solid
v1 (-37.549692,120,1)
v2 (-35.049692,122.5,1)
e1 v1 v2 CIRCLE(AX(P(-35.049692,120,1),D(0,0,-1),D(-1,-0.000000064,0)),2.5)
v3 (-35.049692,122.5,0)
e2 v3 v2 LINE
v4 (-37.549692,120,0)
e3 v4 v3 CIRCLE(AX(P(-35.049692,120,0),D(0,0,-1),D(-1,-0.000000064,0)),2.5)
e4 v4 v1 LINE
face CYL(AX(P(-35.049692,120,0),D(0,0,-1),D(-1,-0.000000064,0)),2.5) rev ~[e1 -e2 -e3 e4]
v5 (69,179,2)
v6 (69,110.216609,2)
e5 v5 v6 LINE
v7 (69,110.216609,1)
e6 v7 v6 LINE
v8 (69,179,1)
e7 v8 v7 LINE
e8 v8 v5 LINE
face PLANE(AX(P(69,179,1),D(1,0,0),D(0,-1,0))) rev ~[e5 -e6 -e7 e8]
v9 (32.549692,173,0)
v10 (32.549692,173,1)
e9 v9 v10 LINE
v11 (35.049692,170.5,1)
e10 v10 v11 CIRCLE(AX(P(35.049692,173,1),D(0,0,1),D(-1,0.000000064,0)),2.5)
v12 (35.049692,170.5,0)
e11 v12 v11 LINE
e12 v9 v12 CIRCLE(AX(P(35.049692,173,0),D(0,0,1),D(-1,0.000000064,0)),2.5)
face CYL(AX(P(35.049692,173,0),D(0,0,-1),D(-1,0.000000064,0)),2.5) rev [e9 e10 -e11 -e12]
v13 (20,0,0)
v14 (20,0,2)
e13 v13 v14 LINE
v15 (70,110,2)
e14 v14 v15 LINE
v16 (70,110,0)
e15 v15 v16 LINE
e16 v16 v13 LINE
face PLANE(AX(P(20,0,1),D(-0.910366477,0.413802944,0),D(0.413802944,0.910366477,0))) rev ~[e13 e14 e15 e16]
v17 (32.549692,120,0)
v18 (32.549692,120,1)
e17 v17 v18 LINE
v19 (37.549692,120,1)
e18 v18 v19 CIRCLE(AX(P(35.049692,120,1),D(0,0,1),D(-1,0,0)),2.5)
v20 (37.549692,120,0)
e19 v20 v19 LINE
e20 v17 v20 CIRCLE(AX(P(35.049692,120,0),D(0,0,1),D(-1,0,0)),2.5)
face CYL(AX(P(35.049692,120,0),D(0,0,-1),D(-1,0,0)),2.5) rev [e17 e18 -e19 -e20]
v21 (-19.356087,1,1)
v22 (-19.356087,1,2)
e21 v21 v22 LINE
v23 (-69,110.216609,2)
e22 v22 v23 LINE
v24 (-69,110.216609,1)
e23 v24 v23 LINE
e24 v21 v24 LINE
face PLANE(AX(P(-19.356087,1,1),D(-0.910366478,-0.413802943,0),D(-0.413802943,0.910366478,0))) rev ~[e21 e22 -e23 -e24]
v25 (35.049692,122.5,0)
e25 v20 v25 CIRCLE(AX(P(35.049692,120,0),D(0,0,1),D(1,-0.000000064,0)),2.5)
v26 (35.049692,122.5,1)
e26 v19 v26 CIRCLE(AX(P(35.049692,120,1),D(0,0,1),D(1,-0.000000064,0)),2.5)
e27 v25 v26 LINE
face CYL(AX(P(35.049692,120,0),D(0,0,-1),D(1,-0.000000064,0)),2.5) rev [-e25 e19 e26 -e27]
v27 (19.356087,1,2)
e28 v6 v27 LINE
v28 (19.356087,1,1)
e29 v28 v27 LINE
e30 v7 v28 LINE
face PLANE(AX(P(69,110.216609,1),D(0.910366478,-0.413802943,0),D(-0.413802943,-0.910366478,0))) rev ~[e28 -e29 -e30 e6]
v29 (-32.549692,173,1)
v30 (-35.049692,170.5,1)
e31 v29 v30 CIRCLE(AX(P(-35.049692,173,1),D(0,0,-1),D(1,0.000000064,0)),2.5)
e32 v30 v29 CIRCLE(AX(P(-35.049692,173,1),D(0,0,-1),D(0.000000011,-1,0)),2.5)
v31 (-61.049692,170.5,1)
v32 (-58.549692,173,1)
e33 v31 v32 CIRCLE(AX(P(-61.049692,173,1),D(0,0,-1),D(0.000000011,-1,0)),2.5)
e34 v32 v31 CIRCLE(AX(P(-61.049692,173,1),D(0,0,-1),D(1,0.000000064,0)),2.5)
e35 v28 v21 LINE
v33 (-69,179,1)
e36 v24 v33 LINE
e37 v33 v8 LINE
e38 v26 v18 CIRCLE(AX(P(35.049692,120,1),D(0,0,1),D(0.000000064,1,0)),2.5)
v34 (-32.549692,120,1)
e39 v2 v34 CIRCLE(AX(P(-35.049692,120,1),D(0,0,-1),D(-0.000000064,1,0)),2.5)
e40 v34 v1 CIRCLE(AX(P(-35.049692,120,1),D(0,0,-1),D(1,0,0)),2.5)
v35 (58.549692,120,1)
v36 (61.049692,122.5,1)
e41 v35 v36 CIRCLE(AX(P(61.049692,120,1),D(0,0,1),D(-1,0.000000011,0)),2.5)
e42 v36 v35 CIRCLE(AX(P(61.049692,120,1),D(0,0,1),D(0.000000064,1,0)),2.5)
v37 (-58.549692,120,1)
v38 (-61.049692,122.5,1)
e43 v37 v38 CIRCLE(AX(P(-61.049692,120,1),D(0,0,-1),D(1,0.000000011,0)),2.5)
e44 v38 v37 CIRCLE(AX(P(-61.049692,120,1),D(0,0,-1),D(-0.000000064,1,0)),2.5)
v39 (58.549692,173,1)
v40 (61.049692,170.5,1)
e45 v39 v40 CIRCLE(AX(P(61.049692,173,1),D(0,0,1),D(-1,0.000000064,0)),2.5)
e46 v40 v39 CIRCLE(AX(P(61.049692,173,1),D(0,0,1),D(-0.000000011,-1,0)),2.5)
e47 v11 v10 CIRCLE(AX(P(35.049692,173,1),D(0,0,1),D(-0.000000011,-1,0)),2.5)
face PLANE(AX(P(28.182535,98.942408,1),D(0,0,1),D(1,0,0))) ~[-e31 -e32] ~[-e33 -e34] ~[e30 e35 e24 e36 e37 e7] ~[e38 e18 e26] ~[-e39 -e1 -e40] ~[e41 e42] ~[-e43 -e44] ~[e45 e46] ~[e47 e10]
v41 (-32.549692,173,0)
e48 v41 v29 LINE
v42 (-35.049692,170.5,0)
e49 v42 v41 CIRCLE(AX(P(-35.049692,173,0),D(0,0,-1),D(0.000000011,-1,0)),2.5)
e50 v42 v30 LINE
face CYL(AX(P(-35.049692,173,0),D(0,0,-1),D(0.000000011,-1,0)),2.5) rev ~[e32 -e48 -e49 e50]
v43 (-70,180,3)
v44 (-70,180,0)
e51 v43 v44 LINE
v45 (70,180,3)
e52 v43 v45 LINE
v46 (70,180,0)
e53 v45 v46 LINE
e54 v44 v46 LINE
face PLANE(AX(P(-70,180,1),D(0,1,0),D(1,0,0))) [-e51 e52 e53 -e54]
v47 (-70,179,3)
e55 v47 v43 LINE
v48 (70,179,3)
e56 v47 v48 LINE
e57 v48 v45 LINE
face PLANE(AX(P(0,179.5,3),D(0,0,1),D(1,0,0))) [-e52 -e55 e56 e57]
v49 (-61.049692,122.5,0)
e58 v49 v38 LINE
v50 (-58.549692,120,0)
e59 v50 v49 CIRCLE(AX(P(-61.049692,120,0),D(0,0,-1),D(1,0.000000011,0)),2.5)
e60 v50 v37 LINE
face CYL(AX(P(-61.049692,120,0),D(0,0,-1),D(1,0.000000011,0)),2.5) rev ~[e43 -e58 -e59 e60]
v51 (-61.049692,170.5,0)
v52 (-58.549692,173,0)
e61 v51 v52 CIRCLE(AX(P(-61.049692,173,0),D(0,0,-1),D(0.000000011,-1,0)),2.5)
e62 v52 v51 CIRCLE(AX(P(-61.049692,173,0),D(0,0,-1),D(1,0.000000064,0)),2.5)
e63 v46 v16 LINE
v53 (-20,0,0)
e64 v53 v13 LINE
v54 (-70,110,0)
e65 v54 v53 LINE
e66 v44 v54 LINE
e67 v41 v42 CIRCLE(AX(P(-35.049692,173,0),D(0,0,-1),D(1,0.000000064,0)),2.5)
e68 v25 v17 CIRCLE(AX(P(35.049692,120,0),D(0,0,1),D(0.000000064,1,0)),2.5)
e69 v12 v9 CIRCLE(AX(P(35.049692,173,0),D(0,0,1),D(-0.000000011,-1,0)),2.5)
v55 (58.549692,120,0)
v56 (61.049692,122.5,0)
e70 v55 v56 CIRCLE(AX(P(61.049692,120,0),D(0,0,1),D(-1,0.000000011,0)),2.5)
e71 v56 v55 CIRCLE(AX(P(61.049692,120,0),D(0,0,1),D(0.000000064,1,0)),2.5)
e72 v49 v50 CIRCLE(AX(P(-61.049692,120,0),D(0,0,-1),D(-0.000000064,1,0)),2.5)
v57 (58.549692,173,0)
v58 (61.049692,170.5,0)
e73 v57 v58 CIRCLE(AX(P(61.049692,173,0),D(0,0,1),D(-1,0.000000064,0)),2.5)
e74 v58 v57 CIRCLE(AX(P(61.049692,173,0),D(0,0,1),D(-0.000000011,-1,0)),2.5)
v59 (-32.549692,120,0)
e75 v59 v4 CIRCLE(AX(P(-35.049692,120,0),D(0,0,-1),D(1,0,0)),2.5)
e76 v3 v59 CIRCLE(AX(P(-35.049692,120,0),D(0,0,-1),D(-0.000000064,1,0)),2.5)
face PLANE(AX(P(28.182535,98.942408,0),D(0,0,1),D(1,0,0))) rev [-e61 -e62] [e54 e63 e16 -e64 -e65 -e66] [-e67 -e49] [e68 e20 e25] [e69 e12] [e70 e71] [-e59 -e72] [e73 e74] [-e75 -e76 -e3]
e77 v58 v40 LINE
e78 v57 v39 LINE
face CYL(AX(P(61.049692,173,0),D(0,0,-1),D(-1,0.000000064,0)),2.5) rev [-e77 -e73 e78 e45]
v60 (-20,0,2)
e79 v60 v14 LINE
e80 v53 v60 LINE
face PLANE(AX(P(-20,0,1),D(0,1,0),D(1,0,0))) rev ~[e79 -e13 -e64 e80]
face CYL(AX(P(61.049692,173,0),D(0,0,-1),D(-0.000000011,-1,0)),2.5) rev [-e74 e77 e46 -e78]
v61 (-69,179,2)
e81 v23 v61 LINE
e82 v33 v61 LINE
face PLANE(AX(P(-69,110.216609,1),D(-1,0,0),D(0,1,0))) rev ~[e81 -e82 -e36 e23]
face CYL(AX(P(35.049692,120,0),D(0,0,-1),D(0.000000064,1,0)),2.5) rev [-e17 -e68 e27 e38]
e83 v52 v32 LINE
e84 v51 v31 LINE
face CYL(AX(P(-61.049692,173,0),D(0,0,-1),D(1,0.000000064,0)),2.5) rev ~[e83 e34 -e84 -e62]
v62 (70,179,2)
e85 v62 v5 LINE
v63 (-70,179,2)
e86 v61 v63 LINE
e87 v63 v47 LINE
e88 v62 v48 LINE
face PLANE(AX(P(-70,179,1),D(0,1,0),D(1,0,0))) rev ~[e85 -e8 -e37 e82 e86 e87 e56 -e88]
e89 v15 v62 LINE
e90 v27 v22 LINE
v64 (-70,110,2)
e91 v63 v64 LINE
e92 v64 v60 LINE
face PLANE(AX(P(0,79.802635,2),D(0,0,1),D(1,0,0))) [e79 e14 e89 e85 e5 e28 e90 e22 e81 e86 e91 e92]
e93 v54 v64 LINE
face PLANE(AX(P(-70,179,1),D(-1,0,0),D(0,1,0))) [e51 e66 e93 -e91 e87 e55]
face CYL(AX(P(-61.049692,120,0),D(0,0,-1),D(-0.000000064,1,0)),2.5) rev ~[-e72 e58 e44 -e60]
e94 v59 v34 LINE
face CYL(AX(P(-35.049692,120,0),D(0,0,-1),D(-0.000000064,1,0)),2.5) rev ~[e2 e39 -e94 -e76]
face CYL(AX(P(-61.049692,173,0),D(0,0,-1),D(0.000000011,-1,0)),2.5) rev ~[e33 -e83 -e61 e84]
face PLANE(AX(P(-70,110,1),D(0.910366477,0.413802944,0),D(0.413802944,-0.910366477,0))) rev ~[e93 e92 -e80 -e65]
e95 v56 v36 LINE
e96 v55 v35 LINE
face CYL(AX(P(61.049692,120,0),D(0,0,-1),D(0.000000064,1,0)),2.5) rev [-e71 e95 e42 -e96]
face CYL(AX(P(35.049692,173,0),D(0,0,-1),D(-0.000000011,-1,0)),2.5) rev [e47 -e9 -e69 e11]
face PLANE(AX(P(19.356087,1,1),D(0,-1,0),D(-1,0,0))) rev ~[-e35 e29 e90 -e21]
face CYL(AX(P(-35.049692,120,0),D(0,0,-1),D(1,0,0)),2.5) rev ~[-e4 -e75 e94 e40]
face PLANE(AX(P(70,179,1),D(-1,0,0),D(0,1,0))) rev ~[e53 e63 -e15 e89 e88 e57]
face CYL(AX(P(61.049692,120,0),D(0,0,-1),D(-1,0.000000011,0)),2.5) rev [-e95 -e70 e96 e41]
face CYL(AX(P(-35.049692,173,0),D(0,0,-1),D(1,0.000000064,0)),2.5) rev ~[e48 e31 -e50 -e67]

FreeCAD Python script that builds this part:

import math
import FreeCAD as App
import Part
import Sketcher
from FreeCAD import Vector


def add_polygon(sketch, points):
    """Adds a closed chain of lines whose ends are joined by coincident constraints."""
    first, n = sketch.GeometryCount, len(points)
    for a, b in zip(points, points[1:] + points[:1]):
        sketch.addGeometry(Part.LineSegment(App.Vector(*a, 0), App.Vector(*b, 0)), False)
    for i in range(n):
        sketch.addConstraint(Sketcher.Constraint("Coincident", first + i, 2, first + (i + 1) % n, 1))

doc = App.newDocument("Part")
body = doc.addObject("PartDesign::Body", "Body")

sketch1 = body.newObject("Sketcher::SketchObject", "Sketch")
sketch1.AttachmentSupport = (doc.getObject("XY_Plane"), [""])
sketch1.MapMode = "FlatFace"
add_polygon(sketch1, [(-20, 0), (0, 0), (0, 180), (-70, 180), (-70, 110)])
sketch1.addGeometry(Part.ArcOfCircle(Part.Circle(Vector(-61.049692, 120, 0), Vector(0, 0, 1), 2.5), math.radians(-0.000004), math.radians(90.000004)), False)
sketch1.addGeometry(Part.ArcOfCircle(Part.Circle(Vector(-61.049692, 120, 0), Vector(0, 0, 1), 2.5), math.radians(89.999999), math.radians(360.000001)), False)
sketch1.addGeometry(Part.ArcOfCircle(Part.Circle(Vector(-35.049692, 120, 0), Vector(0, 0, 1), 2.5), math.radians(-0.000004), math.radians(90.000004)), False)
sketch1.addGeometry(Part.ArcOfCircle(Part.Circle(Vector(-35.049692, 120, 0), Vector(0, 0, 1), 2.5), math.radians(180), math.radians(360)), False)
sketch1.addGeometry(Part.ArcOfCircle(Part.Circle(Vector(-35.049692, 120, 0), Vector(0, 0, 1), 2.5), math.radians(89.999996), math.radians(180.000004)), False)
sketch1.addGeometry(Part.ArcOfCircle(Part.Circle(Vector(-61.049692, 173, 0), Vector(0, 0, 1), 2.5), math.radians(-90.000004), math.radians(0.000004)), False)
sketch1.addGeometry(Part.ArcOfCircle(Part.Circle(Vector(-61.049692, 173, 0), Vector(0, 0, 1), 2.5), math.radians(-0.000001), math.radians(270.000001)), False)
sketch1.addGeometry(Part.ArcOfCircle(Part.Circle(Vector(-35.049692, 173, 0), Vector(0, 0, 1), 2.5), math.radians(-0.000001), math.radians(270.000001)), False)
sketch1.addGeometry(Part.ArcOfCircle(Part.Circle(Vector(-35.049692, 173, 0), Vector(0, 0, 1), 2.5), math.radians(-90.000004), math.radians(0.000004)), False)
sketch1.addConstraint(Sketcher.Constraint("Tangent", 5, 1, 6, 2))
sketch1.addConstraint(Sketcher.Constraint("Coincident", 6, 1, 5, 2))
sketch1.addConstraint(Sketcher.Constraint("Tangent", 7, 1, 8, 2))
sketch1.addConstraint(Sketcher.Constraint("Tangent", 8, 1, 9, 2))
sketch1.addConstraint(Sketcher.Constraint("Tangent", 9, 1, 7, 2))
sketch1.addConstraint(Sketcher.Constraint("Tangent", 10, 1, 11, 2))
sketch1.addConstraint(Sketcher.Constraint("Coincident", 11, 1, 10, 2))
sketch1.addConstraint(Sketcher.Constraint("Tangent", 12, 1, 13, 2))
sketch1.addConstraint(Sketcher.Constraint("Coincident", 13, 1, 12, 2))
sketch1.addConstraint(Sketcher.Constraint("Horizontal", 0))
sketch1.addConstraint(Sketcher.Constraint("Vertical", 1))
sketch1.addConstraint(Sketcher.Constraint("Horizontal", 2))
sketch1.addConstraint(Sketcher.Constraint("Vertical", 3))
sketch1.addConstraint(Sketcher.Constraint("Coincident", 0, 2, -1, 1))
sketch1.addConstraint(Sketcher.Constraint("Equal", 6, 7))
sketch1.addConstraint(Sketcher.Constraint("Equal", 9, 10))
sketch1.addConstraint(Sketcher.Constraint("Equal", 11, 12))
sketch1.addConstraint(Sketcher.Constraint("Horizontal", 6, 3, 7, 3))
sketch1.addConstraint(Sketcher.Constraint("Horizontal", 11, 3, 12, 3))
sketch1.addConstraint(Sketcher.Constraint("Horizontal", 9, 3, 5, 1))
sketch1.addConstraint(Sketcher.Constraint("Horizontal", 5, 1, 7, 1))
sketch1.addConstraint(Sketcher.Constraint("Horizontal", 7, 1, 8, 1))
sketch1.addConstraint(Sketcher.Constraint("Horizontal", 13, 3, 11, 1))
sketch1.addConstraint(Sketcher.Constraint("Horizontal", 11, 1, 12, 1))
sketch1.addConstraint(Sketcher.Constraint("Vertical", 6, 3, 10, 3))
sketch1.addConstraint(Sketcher.Constraint("Vertical", 9, 3, 12, 3))
sketch1.addConstraint(Sketcher.Constraint("Vertical", 11, 3, 6, 1))
sketch1.addConstraint(Sketcher.Constraint("Vertical", 13, 3, 9, 1))
sketch1.addConstraint(Sketcher.Constraint("Vertical", 6, 1, 10, 1))
sketch1.addConstraint(Sketcher.Constraint("Vertical", 9, 1, 13, 1))
sketch1.addConstraint(Sketcher.Constraint("Equal", 2, 3))
sketch1.addConstraint(Sketcher.Constraint("Radius", 5, 2.5))
sketch1.addConstraint(Sketcher.Constraint("DistanceX", 0, 1, 0, 2, 20.0))
sketch1.addConstraint(Sketcher.Constraint("DistanceX", 2, 2, 2, 1, 70.0))
sketch1.addConstraint(Sketcher.Constraint("DistanceY", 1, 1, 1, 2, 180.0))
sketch1.addConstraint(Sketcher.Constraint("DistanceY", -1, 1, 5, 3, 120.0))
sketch1.addConstraint(Sketcher.Constraint("DistanceY", -1, 1, 10, 3, 173.0))
sketch1.addConstraint(Sketcher.Constraint("DistanceX", 5, 3, 7, 3, 26.0))
sketch1.addConstraint(Sketcher.Constraint("DistanceX", 5, 3, -1, 1, 61.049692))
pad1 = body.newObject("PartDesign::Pad", "Pad")
pad1.Profile = sketch1
pad1.Length = 1
body2 = doc.addObject("PartDesign::Body", "Body001")
doc.recompute()

body2.BaseFeature = body
doc.recompute()

mirroring = doc.addObject("Part::Mirroring", "Mirroring")
mirroring.Source = body
mirroring.Base = Vector(0, 90, 0.5)
mirroring.Normal = Vector(1, 0, 0)
body3 = doc.addObject("PartDesign::Body", "Body002")
body3.BaseFeature = mirroring
boolean = body2.newObject("PartDesign::Boolean", "Boolean")
boolean.Type = "Fuse"
boolean.addObjects([body3])
doc.recompute()

sketch2 = body2.newObject("Sketcher::SketchObject", "Sketch001")
sketch2.AttachmentSupport = (doc.getObject("XY_Plane001"), [""])
sketch2.MapMode = "FlatFace"
sketch2.AttachmentOffset = App.Placement(Vector(0, 0, 1), App.Rotation())
add_polygon(sketch2, [(-70, 180), (-70, 179), (70, 179), (70, 180)])
sketch2.addConstraint(Sketcher.Constraint("Vertical", 0))
sketch2.addConstraint(Sketcher.Constraint("Horizontal", 1))
sketch2.addConstraint(Sketcher.Constraint("Vertical", 2))
sketch2.addConstraint(Sketcher.Constraint("Horizontal", 3))
sketch2.addConstraint(Sketcher.Constraint("DistanceX", 1, 1, 1, 2, 140.0))
sketch2.addConstraint(Sketcher.Constraint("DistanceY", 0, 2, 0, 1, 1.0))
sketch2.addConstraint(Sketcher.Constraint("DistanceX", 0, 2, -1, 1, 70.0))
sketch2.addConstraint(Sketcher.Constraint("DistanceY", -1, 1, 0, 2, 179.0))
pad2 = body2.newObject("PartDesign::Pad", "Pad001")
pad2.Profile = sketch2
pad2.Length = 2

sketch3 = body2.newObject("Sketcher::SketchObject", "Sketch002")
sketch3.AttachmentSupport = (doc.getObject("XY_Plane001"), [""])
sketch3.MapMode = "FlatFace"
sketch3.AttachmentOffset = App.Placement(Vector(0, 0, 1), App.Rotation())
add_polygon(sketch3, [(-69, 110.216609), (-69, 179), (-70, 179), (-70, 110), (-20, 0), (20, 0), (70, 110), (70, 179), (69, 179), (69, 110.216609), (19.356087, 1), (-19.356087, 1)])
sketch3.addConstraint(Sketcher.Constraint("Vertical", 0))
sketch3.addConstraint(Sketcher.Constraint("Horizontal", 1))
sketch3.addConstraint(Sketcher.Constraint("Vertical", 2))
sketch3.addConstraint(Sketcher.Constraint("Horizontal", 4))
sketch3.addConstraint(Sketcher.Constraint("Vertical", 6))
sketch3.addConstraint(Sketcher.Constraint("Horizontal", 7))
sketch3.addConstraint(Sketcher.Constraint("Vertical", 8))
sketch3.addConstraint(Sketcher.Constraint("Horizontal", 10))
sketch3.addConstraint(Sketcher.Constraint("Symmetric", 3, 2, 4, 2, -1, 1))
sketch3.addConstraint(Sketcher.Constraint("Symmetric", 2, 2, 5, 2, -2))
sketch3.addConstraint(Sketcher.Constraint("Symmetric", 0, 2, 7, 2, -2))
sketch3.addConstraint(Sketcher.Constraint("Parallel", 5, 9))
sketch3.addConstraint(Sketcher.Constraint("Parallel", 3, 11))
sketch3.addConstraint(Sketcher.Constraint("Horizontal", 8, 2, 11, 2))
sketch3.addConstraint(Sketcher.Constraint("DistanceX", 1, 2, 1, 1, 1.0))
sketch3.addConstraint(Sketcher.Constraint("DistanceX", 4, 1, 4, 2, 40.0))
sketch3.addConstraint(Sketcher.Constraint("DistanceY", 2, 2, 2, 1, 69.0))
sketch3.addConstraint(Sketcher.Constraint("DistanceX", 0, 2, -1, 1, 69.0))
sketch3.addConstraint(Sketcher.Constraint("DistanceY", -1, 1, 0, 2, 179.0))
sketch3.addConstraint(Sketcher.Constraint("DistanceY", -1, 1, 9, 2, 1.0))
sketch3.addConstraint(Sketcher.Constraint("DistanceY", 0, 1, 0, 2, 68.783391))
pad3 = body2.newObject("PartDesign::Pad", "Pad002")
pad3.Profile = sketch3
pad3.Length = 1
mirroring.Visibility = False

doc.recompute()
